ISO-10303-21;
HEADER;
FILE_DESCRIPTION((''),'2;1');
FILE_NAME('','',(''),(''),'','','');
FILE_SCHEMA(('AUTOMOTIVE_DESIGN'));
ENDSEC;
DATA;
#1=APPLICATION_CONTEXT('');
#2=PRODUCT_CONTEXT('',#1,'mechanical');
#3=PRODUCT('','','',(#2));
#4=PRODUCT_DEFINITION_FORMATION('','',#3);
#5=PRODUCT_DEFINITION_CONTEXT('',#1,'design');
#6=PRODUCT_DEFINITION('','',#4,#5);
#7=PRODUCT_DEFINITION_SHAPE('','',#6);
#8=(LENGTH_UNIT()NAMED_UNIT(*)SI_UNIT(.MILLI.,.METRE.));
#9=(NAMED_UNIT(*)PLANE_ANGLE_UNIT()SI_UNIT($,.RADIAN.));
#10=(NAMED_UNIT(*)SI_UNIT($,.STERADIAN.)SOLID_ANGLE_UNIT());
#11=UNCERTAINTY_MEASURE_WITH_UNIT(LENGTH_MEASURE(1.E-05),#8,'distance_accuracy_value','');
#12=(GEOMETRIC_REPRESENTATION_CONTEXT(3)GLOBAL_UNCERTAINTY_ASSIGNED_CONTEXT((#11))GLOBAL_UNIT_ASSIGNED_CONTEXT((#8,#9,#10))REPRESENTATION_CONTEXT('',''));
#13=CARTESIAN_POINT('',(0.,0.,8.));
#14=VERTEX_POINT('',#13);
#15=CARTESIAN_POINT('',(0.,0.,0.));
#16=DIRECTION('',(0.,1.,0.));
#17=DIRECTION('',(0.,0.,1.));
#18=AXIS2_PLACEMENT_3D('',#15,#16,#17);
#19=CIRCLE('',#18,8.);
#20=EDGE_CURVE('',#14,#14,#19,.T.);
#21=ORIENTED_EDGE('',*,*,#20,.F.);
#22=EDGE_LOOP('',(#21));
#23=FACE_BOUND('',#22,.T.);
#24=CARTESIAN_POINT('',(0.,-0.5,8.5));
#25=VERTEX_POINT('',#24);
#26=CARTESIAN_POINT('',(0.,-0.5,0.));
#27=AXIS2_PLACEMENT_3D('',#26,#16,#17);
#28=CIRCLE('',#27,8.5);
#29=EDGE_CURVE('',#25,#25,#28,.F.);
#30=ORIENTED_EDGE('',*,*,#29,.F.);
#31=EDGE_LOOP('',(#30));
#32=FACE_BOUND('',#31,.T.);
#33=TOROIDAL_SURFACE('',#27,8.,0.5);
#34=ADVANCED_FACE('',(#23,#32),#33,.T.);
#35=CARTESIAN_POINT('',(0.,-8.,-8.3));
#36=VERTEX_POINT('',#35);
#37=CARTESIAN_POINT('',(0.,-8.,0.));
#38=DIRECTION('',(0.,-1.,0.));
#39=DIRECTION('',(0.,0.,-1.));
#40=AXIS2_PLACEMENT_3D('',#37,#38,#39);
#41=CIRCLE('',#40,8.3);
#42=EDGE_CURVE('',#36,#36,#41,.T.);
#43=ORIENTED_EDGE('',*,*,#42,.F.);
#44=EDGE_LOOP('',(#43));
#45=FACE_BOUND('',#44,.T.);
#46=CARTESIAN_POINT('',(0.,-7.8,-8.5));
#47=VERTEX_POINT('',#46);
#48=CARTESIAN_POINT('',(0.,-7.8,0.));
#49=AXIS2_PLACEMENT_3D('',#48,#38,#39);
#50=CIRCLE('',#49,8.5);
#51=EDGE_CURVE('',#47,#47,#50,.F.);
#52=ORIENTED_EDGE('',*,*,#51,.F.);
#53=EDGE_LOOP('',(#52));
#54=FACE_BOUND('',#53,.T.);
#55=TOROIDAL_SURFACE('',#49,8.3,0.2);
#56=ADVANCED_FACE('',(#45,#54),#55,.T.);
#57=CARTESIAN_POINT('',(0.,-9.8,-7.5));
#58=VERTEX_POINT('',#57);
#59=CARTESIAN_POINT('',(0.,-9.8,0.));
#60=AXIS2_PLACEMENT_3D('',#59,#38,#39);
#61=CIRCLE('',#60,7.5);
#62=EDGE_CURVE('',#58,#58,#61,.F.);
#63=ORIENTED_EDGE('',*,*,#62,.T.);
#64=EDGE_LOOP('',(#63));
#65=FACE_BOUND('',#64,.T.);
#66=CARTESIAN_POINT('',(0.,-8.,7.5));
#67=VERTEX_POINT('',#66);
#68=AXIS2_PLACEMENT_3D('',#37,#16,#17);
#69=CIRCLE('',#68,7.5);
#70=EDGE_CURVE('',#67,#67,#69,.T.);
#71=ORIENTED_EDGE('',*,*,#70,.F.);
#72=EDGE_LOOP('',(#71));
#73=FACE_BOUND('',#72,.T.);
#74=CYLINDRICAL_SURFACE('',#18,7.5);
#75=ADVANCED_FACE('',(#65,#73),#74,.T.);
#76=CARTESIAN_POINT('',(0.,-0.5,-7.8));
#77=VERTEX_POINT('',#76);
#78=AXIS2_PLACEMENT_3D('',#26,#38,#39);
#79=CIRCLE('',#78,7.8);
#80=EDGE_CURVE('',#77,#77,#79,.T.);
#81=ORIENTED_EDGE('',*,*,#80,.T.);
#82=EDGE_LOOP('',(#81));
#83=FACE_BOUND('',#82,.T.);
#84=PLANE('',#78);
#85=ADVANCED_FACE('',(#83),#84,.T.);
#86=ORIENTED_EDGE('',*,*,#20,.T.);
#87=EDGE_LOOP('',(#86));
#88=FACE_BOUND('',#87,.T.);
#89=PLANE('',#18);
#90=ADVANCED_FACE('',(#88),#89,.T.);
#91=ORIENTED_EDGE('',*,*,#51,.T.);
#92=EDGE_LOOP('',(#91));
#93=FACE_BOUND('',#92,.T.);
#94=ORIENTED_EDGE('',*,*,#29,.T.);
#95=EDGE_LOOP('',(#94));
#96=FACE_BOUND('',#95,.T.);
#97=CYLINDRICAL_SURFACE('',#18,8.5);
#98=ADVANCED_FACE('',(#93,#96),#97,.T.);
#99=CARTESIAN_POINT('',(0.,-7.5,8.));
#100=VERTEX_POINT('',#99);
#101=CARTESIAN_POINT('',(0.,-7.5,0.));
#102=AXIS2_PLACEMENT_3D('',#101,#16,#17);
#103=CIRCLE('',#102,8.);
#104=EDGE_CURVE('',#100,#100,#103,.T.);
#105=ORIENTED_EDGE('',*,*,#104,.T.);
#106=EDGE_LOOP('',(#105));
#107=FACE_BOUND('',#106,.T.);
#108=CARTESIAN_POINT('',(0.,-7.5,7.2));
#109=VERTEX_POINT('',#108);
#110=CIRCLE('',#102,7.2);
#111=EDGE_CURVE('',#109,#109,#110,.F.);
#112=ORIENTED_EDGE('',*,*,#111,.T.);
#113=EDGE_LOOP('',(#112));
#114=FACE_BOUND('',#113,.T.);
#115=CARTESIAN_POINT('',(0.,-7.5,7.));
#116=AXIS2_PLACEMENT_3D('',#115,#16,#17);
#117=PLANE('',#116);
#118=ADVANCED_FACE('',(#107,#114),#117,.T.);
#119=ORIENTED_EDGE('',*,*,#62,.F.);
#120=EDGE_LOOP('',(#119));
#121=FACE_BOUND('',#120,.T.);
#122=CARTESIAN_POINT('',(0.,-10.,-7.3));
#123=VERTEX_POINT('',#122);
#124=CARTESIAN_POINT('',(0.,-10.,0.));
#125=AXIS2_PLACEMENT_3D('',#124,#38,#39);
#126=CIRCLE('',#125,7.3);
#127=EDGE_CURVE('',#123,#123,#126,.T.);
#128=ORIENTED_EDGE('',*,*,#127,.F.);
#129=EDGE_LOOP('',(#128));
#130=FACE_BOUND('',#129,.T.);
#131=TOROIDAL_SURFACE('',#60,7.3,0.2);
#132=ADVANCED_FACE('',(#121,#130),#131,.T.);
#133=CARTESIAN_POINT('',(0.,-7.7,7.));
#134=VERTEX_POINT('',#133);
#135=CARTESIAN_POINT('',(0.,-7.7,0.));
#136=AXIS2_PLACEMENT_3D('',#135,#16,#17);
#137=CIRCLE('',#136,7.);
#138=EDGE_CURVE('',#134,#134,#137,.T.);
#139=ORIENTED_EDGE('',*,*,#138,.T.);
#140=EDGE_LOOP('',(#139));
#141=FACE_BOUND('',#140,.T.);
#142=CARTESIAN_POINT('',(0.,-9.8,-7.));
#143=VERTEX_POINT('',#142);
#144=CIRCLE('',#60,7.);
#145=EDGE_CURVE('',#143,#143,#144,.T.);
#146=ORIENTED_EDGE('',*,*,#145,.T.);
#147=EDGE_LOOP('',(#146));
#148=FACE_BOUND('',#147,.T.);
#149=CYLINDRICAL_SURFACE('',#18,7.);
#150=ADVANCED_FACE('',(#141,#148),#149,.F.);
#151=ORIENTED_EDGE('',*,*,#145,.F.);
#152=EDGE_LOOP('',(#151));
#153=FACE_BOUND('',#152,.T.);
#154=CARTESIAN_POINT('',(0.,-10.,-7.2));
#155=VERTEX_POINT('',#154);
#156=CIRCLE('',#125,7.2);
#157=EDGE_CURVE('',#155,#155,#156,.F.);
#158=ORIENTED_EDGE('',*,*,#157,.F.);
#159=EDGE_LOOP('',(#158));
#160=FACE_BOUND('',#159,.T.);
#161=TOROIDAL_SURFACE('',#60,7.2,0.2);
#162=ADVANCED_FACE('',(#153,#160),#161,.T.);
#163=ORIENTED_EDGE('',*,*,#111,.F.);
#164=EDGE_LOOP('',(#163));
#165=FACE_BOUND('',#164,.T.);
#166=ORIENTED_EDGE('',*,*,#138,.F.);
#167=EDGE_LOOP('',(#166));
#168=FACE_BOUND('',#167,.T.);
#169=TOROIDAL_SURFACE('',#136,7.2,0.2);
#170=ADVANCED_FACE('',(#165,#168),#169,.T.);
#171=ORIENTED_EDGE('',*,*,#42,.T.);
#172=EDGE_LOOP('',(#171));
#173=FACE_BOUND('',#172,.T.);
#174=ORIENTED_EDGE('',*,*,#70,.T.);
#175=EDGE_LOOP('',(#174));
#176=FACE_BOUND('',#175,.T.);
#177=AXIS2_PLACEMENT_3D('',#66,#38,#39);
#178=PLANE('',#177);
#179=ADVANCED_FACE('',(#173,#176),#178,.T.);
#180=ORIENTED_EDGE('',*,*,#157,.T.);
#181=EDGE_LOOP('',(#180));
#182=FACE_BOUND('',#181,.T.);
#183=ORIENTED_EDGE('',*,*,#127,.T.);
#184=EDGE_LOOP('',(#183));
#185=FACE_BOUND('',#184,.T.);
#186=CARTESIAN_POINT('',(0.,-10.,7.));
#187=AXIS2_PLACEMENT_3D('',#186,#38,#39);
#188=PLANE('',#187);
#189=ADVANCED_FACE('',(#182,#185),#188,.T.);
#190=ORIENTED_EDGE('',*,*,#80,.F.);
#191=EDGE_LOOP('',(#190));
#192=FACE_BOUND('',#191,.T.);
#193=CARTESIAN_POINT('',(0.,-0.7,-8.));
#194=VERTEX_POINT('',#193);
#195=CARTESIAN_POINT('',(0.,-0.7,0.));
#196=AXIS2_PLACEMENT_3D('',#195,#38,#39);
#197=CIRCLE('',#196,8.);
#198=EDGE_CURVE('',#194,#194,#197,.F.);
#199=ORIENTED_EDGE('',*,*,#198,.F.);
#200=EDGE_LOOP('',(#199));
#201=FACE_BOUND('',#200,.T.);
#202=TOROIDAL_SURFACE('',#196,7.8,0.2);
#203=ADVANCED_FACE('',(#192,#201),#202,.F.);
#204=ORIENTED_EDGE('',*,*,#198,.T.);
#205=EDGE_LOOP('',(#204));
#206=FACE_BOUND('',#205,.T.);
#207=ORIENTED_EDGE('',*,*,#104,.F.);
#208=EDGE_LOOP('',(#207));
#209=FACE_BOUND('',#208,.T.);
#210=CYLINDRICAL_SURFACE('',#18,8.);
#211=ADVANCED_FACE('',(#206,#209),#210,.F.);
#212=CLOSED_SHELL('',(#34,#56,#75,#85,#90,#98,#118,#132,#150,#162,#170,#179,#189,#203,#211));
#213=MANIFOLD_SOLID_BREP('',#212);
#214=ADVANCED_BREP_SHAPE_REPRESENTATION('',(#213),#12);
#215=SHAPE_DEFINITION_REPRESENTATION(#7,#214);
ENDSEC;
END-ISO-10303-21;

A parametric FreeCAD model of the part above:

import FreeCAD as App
import Part
import Sketcher


def edges_at(feature, points):
    """Names of the edges that pass closest to the given points."""
    edges = feature.Shape.Edges
    near = lambda p: min(range(len(edges)), key=lambda i: edges[i].distToShape(Part.Vertex(*p))[0])
    return sorted({f"Edge{near(p) + 1}" for p in points})

doc = App.newDocument("Part")
body = doc.addObject("PartDesign::Body", "Body")

# Sketch on YZ plane
sketch1 = doc.addObject("Sketcher::SketchObject", "Sketch")
body.addObject(sketch1)
sketch1.AttachmentSupport = (doc.YZ_Plane, [""])
sketch1.MapMode = "FlatFace"
sketch1.addGeometry([
    Part.LineSegment(App.Vector(0, 0, 0), App.Vector(0, 8.5, 0)),  # 0
    Part.LineSegment(App.Vector(0, 8.5, 0), App.Vector(-8, 8.5, 0)),  # 1
    Part.LineSegment(App.Vector(-8, 8.5, 0), App.Vector(-8, 7.5, 0)),  # 2
    Part.LineSegment(App.Vector(-8, 7.5, 0), App.Vector(-10, 7.5, 0)),  # 3
    Part.LineSegment(App.Vector(-10, 7.5, 0), App.Vector(-10, 7, 0)),  # 4
    Part.LineSegment(App.Vector(-10, 7, 0), App.Vector(-7.5, 7, 0)),  # 5
    Part.LineSegment(App.Vector(-7.5, 7, 0), App.Vector(-7.5, 8, 0)),  # 6
    Part.LineSegment(App.Vector(-7.5, 8, 0), App.Vector(-0.5, 8, 0)),  # 7
    Part.LineSegment(App.Vector(-0.5, 8, 0), App.Vector(-0.5, 0, 0)),  # 8
    Part.LineSegment(App.Vector(-0.5, 0, 0), App.Vector(0, 0, 0)),  # 9
], False)
sketch1.addConstraint([
    Sketcher.Constraint("Coincident", 0, 2, 1, 1),
    Sketcher.Constraint("Coincident", 1, 2, 2, 1),
    Sketcher.Constraint("Coincident", 2, 2, 3, 1),
    Sketcher.Constraint("Coincident", 3, 2, 4, 1),
    Sketcher.Constraint("Coincident", 4, 2, 5, 1),
    Sketcher.Constraint("Coincident", 5, 2, 6, 1),
    Sketcher.Constraint("Coincident", 6, 2, 7, 1),
    Sketcher.Constraint("Coincident", 7, 2, 8, 1),
    Sketcher.Constraint("Coincident", 8, 2, 9, 1),
    Sketcher.Constraint("Coincident", 9, 2, 0, 1),
    Sketcher.Constraint("Vertical", 0),
    Sketcher.Constraint("Horizontal", 1),
    Sketcher.Constraint("Vertical", 2),
    Sketcher.Constraint("Horizontal", 3),
    Sketcher.Constraint("Vertical", 4),
    Sketcher.Constraint("Horizontal", 5),
    Sketcher.Constraint("Vertical", 6),
    Sketcher.Constraint("Horizontal", 7),
    Sketcher.Constraint("Vertical", 8),
    Sketcher.Constraint("Horizontal", 9),
    Sketcher.Constraint("Coincident", 9, 2, -1, 1),
    Sketcher.Constraint("Equal", 9, 4),
    Sketcher.Constraint("Equal", 2, 6),
    Sketcher.Constraint("Equal", 1, 8),
    Sketcher.Constraint("DistanceX", 1, 2, 1, 1, 8.0),
    Sketcher.Constraint("DistanceX", 3, 2, 3, 1, 2.0),
    Sketcher.Constraint("DistanceX", 7, 1, 7, 2, 7.0),
    Sketcher.Constraint("DistanceY", 2, 2, 2, 1, 1.0),
    Sketcher.Constraint("DistanceX", 5, 1, 5, 2, 2.5),
])
revolution = doc.addObject("PartDesign::Revolution", "Revolution")
body.addObject(revolution)
revolution.Profile = sketch1
revolution.ReferenceAxis = (sketch1, ["H_Axis"])
revolution.Angle = 360
doc.recompute()

fillet = doc.addObject("PartDesign::Fillet", "Fillet")
body.addObject(fillet)
fillet.Base = (revolution, edges_at(revolution, [(0, 0, -8.5)]))
fillet.Radius = 0.5
doc.recompute()

fillet2 = doc.addObject("PartDesign::Fillet", "Fillet001")
body.addObject(fillet2)
fillet2.Base = (fillet, edges_at(fillet, [
    (0, -0.5, -8),
    (0, -8, -8.5),
    (0, -10, -7.5),
    (0, -10, -7),
    (0, -7.5, -7),
]))
fillet2.Radius = 0.2

doc.recompute()
